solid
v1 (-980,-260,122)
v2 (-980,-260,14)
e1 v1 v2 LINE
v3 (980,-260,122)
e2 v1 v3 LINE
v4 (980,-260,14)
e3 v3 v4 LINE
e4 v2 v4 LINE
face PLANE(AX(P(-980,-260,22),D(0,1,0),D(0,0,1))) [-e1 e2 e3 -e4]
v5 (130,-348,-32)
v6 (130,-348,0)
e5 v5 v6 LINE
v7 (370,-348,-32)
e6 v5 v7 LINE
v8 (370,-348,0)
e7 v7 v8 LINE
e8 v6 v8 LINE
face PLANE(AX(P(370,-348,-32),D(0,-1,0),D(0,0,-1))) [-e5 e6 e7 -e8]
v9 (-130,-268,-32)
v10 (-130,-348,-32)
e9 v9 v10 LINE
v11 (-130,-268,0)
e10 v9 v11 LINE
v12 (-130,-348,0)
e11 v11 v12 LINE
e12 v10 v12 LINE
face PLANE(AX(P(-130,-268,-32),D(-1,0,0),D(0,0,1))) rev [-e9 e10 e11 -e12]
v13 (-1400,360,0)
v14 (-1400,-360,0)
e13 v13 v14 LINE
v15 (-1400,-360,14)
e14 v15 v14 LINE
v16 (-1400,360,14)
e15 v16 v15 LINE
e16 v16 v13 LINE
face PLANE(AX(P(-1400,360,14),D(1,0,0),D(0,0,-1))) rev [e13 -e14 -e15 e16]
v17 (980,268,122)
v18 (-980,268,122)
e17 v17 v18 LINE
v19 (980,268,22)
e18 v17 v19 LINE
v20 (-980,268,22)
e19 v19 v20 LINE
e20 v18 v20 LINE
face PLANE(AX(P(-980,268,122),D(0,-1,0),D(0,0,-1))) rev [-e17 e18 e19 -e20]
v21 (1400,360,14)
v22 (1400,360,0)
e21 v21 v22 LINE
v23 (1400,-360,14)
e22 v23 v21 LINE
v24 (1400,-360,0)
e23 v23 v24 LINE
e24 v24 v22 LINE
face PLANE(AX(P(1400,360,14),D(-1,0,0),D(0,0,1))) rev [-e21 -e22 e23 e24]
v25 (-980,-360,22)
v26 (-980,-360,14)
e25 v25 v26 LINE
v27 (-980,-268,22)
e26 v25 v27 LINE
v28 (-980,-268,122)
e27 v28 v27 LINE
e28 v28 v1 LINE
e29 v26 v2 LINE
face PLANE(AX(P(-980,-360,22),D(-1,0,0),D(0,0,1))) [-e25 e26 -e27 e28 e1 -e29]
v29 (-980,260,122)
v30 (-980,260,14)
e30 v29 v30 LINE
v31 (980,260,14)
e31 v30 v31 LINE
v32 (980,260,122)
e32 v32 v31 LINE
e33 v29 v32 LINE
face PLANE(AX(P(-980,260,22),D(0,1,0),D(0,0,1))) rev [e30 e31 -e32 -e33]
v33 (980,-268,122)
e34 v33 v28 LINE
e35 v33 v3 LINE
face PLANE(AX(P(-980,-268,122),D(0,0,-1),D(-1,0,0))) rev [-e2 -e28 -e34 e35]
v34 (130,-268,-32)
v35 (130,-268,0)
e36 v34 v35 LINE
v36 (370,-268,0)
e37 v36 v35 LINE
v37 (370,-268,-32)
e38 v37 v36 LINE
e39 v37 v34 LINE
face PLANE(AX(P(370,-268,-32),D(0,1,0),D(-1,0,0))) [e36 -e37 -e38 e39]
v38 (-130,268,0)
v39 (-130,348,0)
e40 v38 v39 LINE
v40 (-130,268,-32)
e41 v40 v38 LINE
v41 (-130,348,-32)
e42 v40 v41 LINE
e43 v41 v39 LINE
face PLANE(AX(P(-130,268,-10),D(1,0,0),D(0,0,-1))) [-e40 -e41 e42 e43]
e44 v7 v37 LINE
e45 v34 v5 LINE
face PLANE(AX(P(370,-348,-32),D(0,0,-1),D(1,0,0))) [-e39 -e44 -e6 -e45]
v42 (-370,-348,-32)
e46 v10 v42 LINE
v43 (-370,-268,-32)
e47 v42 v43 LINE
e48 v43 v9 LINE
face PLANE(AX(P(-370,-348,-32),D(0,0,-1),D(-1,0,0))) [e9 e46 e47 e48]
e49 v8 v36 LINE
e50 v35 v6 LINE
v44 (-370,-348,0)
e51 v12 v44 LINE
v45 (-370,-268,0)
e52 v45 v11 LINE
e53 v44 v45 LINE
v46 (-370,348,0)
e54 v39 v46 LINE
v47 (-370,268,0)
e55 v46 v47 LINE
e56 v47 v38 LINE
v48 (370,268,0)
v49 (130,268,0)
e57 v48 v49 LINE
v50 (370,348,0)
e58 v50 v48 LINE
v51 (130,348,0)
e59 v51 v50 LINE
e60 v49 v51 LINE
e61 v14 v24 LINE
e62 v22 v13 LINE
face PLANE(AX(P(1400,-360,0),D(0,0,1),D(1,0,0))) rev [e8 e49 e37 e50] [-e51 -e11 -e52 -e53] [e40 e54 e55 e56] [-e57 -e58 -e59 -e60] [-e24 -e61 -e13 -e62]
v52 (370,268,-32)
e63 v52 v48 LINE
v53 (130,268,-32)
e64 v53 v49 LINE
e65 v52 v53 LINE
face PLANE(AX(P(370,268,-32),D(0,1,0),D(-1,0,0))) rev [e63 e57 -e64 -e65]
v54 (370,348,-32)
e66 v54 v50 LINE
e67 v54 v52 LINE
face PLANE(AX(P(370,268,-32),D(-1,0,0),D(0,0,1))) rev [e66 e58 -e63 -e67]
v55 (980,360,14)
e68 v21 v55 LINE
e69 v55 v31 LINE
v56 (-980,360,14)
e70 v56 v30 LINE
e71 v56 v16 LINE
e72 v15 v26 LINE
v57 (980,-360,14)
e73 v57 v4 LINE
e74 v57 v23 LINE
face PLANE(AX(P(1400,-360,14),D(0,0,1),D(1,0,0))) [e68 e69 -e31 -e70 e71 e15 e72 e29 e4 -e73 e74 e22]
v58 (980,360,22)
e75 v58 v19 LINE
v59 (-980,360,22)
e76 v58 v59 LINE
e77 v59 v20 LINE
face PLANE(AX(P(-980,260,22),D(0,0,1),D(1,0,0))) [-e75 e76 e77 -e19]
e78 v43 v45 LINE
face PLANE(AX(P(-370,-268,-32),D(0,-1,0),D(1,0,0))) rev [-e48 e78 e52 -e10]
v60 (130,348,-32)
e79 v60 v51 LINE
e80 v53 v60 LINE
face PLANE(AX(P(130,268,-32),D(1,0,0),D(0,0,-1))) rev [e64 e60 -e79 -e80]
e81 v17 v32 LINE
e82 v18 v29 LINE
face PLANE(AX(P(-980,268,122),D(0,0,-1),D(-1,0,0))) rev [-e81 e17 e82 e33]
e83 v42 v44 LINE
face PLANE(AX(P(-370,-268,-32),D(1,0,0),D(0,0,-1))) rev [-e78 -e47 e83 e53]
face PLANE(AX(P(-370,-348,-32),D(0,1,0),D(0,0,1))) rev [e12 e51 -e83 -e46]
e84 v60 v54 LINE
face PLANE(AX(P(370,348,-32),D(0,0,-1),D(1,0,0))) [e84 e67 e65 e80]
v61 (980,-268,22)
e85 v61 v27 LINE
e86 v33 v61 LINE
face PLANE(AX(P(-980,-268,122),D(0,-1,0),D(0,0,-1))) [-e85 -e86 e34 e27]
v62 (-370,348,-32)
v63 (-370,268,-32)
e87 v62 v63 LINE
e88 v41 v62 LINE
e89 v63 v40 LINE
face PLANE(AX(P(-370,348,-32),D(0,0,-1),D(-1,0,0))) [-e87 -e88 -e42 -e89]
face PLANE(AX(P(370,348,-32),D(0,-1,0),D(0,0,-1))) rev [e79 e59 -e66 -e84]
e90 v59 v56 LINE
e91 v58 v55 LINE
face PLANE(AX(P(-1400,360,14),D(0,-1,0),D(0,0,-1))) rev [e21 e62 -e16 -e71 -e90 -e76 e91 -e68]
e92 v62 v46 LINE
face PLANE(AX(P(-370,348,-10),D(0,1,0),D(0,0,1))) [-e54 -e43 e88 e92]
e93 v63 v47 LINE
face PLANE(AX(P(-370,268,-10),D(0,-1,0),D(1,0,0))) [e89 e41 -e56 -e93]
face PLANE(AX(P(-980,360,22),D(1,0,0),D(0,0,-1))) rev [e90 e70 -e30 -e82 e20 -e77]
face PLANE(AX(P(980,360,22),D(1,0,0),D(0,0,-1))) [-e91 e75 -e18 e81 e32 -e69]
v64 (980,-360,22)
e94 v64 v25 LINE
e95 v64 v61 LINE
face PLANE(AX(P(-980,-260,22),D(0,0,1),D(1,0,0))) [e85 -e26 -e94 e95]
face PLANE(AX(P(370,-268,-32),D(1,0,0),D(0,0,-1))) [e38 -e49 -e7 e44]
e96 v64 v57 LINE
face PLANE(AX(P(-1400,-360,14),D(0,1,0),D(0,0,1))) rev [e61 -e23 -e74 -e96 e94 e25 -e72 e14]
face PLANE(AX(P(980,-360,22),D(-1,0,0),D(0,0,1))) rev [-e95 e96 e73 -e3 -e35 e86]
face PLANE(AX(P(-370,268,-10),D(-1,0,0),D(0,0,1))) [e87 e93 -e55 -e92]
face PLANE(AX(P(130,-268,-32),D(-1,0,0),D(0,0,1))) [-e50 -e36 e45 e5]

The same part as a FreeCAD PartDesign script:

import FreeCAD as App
import Part
import Sketcher

doc = App.newDocument("Part")
body = doc.addObject("PartDesign::Body", "Body")

# Sketch on XY plane
sketch1 = doc.addObject("Sketcher::SketchObject", "Sketch")
body.addObject(sketch1)
sketch1.AttachmentSupport = (doc.XY_Plane, [""])
sketch1.MapMode = "FlatFace"
sketch1.addGeometry([
    Part.LineSegment(App.Vector(-1400, 360, 0), App.Vector(-1400, -360, 0)),
    Part.LineSegment(App.Vector(-1400, -360, 0), App.Vector(1400, -360, 0)),
    Part.LineSegment(App.Vector(1400, -360, 0), App.Vector(1400, 360, 0)),
    Part.LineSegment(App.Vector(1400, 360, 0), App.Vector(-1400, 360, 0)),
], False)
sketch1.addConstraint([
    Sketcher.Constraint("Coincident", 0, 2, 1, 1),
    Sketcher.Constraint("Coincident", 1, 2, 2, 1),
    Sketcher.Constraint("Coincident", 2, 2, 3, 1),
    Sketcher.Constraint("Coincident", 3, 2, 0, 1),
    Sketcher.Constraint("Vertical", 0),
    Sketcher.Constraint("Horizontal", 1),
    Sketcher.Constraint("Vertical", 2),
    Sketcher.Constraint("Horizontal", 3),
    Sketcher.Constraint("Symmetric", 0, 2, 2, 2, -1, 1),
    Sketcher.Constraint("DistanceX", 1, 1, 1, 2, 2800.0),
    Sketcher.Constraint("DistanceY", 0, 2, 0, 1, 720.0),
])
pad1 = doc.addObject("PartDesign::Pad", "Pad")
body.addObject(pad1)
pad1.Profile = sketch1
pad1.Length = 14

# Sketch on XY plane
sketch2 = doc.addObject("Sketcher::SketchObject", "Sketch001")
body.addObject(sketch2)
sketch2.AttachmentSupport = (doc.XY_Plane, [""])
sketch2.MapMode = "FlatFace"
sketch2.AttachmentOffset = App.Placement(App.Vector(0, 0, 14), App.Rotation())
sketch2.addGeometry([
    Part.LineSegment(App.Vector(-980, 360, 0), App.Vector(-980, 260, 0)),
    Part.LineSegment(App.Vector(-980, 260, 0), App.Vector(0, 260, 0)),
    Part.LineSegment(App.Vector(0, 260, 0), App.Vector(0, 360, 0)),
    Part.LineSegment(App.Vector(0, 360, 0), App.Vector(-980, 360, 0)),
], False)
sketch2.addConstraint([
    Sketcher.Constraint("Coincident", 0, 2, 1, 1),
    Sketcher.Constraint("Coincident", 1, 2, 2, 1),
    Sketcher.Constraint("Coincident", 2, 2, 3, 1),
    Sketcher.Constraint("Coincident", 3, 2, 0, 1),
    Sketcher.Constraint("Vertical", 0),
    Sketcher.Constraint("Horizontal", 1),
    Sketcher.Constraint("Vertical", 2),
    Sketcher.Constraint("Horizontal", 3),
    Sketcher.Constraint("PointOnObject", 1, 2, -2),
    Sketcher.Constraint("DistanceX", 1, 1, 1, 2, 980.0),
    Sketcher.Constraint("DistanceY", 0, 2, 0, 1, 100.0),
    Sketcher.Constraint("DistanceY", -1, 1, 0, 2, 260.0),
])
pad2 = doc.addObject("PartDesign::Pad", "Pad001")
body.addObject(pad2)
pad2.Profile = sketch2
pad2.Length = 8

# Sketch on XY plane
sketch3 = doc.addObject("Sketcher::SketchObject", "Sketch002")
body.addObject(sketch3)
sketch3.AttachmentSupport = (doc.XY_Plane, [""])
sketch3.MapMode = "FlatFace"
sketch3.AttachmentOffset = App.Placement(App.Vector(0, 0, 22), App.Rotation())
sketch3.addGeometry([
    Part.LineSegment(App.Vector(-980, 268, 0), App.Vector(-980, 260, 0)),
    Part.LineSegment(App.Vector(-980, 260, 0), App.Vector(0, 260, 0)),
    Part.LineSegment(App.Vector(0, 260, 0), App.Vector(0, 268, 0)),
    Part.LineSegment(App.Vector(0, 268, 0), App.Vector(-980, 268, 0)),
], False)
sketch3.addConstraint([
    Sketcher.Constraint("Coincident", 0, 2, 1, 1),
    Sketcher.Constraint("Coincident", 1, 2, 2, 1),
    Sketcher.Constraint("Coincident", 2, 2, 3, 1),
    Sketcher.Constraint("Coincident", 3, 2, 0, 1),
    Sketcher.Constraint("Vertical", 0),
    Sketcher.Constraint("Horizontal", 1),
    Sketcher.Constraint("Vertical", 2),
    Sketcher.Constraint("Horizontal", 3),
    Sketcher.Constraint("PointOnObject", 1, 2, -2),
    Sketcher.Constraint("DistanceX", 1, 1, 1, 2, 980.0),
    Sketcher.Constraint("DistanceY", 0, 2, 0, 1, 8.0),
    Sketcher.Constraint("DistanceY", -1, 1, 0, 2, 260.0),
])
pad3 = doc.addObject("PartDesign::Pad", "Pad002")
body.addObject(pad3)
pad3.Profile = sketch3
pad3.Length = 100
doc.recompute()

mirrored = doc.addObject("PartDesign::Mirrored", "Mirrored")
body.addObject(mirrored)
mirrored.Originals = [pad2, pad3]
mirrored.MirrorPlane = (doc.XZ_Plane, [""])
body.Tip = mirrored
doc.recompute()

mirrored2 = doc.addObject("PartDesign::Mirrored", "Mirrored001")
body.addObject(mirrored2)
mirrored2.Originals = [pad3]
mirrored2.MirrorPlane = (doc.YZ_Plane, [""])
body.Tip = mirrored2

# Sketch on XY plane
sketch4 = doc.addObject("Sketcher::SketchObject", "Sketch003")
body.addObject(sketch4)
sketch4.AttachmentSupport = (doc.XY_Plane, [""])
sketch4.MapMode = "FlatFace"
sketch4.AttachmentOffset = App.Placement(App.Vector(0, 0, 14), App.Rotation())
sketch4.addGeometry([
    Part.LineSegment(App.Vector(980, -360, 0), App.Vector(980, -260, 0)),
    Part.LineSegment(App.Vector(980, -260, 0), App.Vector(0, -260, 0)),
    Part.LineSegment(App.Vector(0, -260, 0), App.Vector(0, -360, 0)),
    Part.LineSegment(App.Vector(0, -360, 0), App.Vector(980, -360, 0)),
], False)
sketch4.addConstraint([
    Sketcher.Constraint("Coincident", 0, 2, 1, 1),
    Sketcher.Constraint("Coincident", 1, 2, 2, 1),
    Sketcher.Constraint("Coincident", 2, 2, 3, 1),
    Sketcher.Constraint("Coincident", 3, 2, 0, 1),
    Sketcher.Constraint("Vertical", 0),
    Sketcher.Constraint("Horizontal", 1),
    Sketcher.Constraint("Vertical", 2),
    Sketcher.Constraint("Horizontal", 3),
    Sketcher.Constraint("PointOnObject", 1, 2, -2),
    Sketcher.Constraint("DistanceX", 1, 2, 1, 1, 980.0),
    Sketcher.Constraint("DistanceY", 0, 1, 0, 2, 100.0),
    Sketcher.Constraint("DistanceY", 0, 2, -1, 1, 260.0),
])
pad4 = doc.addObject("PartDesign::Pad", "Pad003")
body.addObject(pad4)
pad4.Profile = sketch4
pad4.Length = 8

# Sketch on XY plane
sketch5 = doc.addObject("Sketcher::SketchObject", "Sketch004")
body.addObject(sketch5)
sketch5.AttachmentSupport = (doc.XY_Plane, [""])
sketch5.MapMode = "FlatFace"
sketch5.AttachmentOffset = App.Placement(App.Vector(0, 0, 22), App.Rotation())
sketch5.addGeometry([
    Part.LineSegment(App.Vector(980, -268, 0), App.Vector(980, -260, 0)),
    Part.LineSegment(App.Vector(980, -260, 0), App.Vector(0, -260, 0)),
    Part.LineSegment(App.Vector(0, -260, 0), App.Vector(0, -268, 0)),
    Part.LineSegment(App.Vector(0, -268, 0), App.Vector(980, -268, 0)),
], False)
sketch5.addConstraint([
    Sketcher.Constraint("Coincident", 0, 2, 1, 1),
    Sketcher.Constraint("Coincident", 1, 2, 2, 1),
    Sketcher.Constraint("Coincident", 2, 2, 3, 1),
    Sketcher.Constraint("Coincident", 3, 2, 0, 1),
    Sketcher.Constraint("Vertical", 0),
    Sketcher.Constraint("Horizontal", 1),
    Sketcher.Constraint("Vertical", 2),
    Sketcher.Constraint("Horizontal", 3),
    Sketcher.Constraint("PointOnObject", 1, 2, -2),
    Sketcher.Constraint("DistanceX", 1, 2, 1, 1, 980.0),
    Sketcher.Constraint("DistanceY", 0, 1, 0, 2, 8.0),
    Sketcher.Constraint("DistanceY", 0, 2, -1, 1, 260.0),
])
pad5 = doc.addObject("PartDesign::Pad", "Pad004")
body.addObject(pad5)
pad5.Profile = sketch5
pad5.Length = 100

# Sketch on XY plane
sketch6 = doc.addObject("Sketcher::SketchObject", "Sketch005")
body.addObject(sketch6)
sketch6.AttachmentSupport = (doc.XY_Plane, [""])
sketch6.MapMode = "FlatFace"
sketch6.AttachmentOffset = App.Placement(App.Vector(0, 0, 14), App.Rotation())
sketch6.addGeometry([
    Part.LineSegment(App.Vector(980, 260, 0), App.Vector(980, 360, 0)),
    Part.LineSegment(App.Vector(980, 360, 0), App.Vector(0, 360, 0)),
    Part.LineSegment(App.Vector(0, 360, 0), App.Vector(0, 260, 0)),
    Part.LineSegment(App.Vector(0, 260, 0), App.Vector(980, 260, 0)),
], False)
sketch6.addConstraint([
    Sketcher.Constraint("Coincident", 0, 2, 1, 1),
    Sketcher.Constraint("Coincident", 1, 2, 2, 1),
    Sketcher.Constraint("Coincident", 2, 2, 3, 1),
    Sketcher.Constraint("Coincident", 3, 2, 0, 1),
    Sketcher.Constraint("Vertical", 0),
    Sketcher.Constraint("Horizontal", 1),
    Sketcher.Constraint("Vertical", 2),
    Sketcher.Constraint("Horizontal", 3),
    Sketcher.Constraint("PointOnObject", 1, 2, -2),
    Sketcher.Constraint("DistanceX", 1, 2, 1, 1, 980.0),
    Sketcher.Constraint("DistanceY", 0, 1, 0, 2, 100.0),
    Sketcher.Constraint("DistanceY", -1, 1, 0, 2, 360.0),
])
pad6 = doc.addObject("PartDesign::Pad", "Pad005")
body.addObject(pad6)
pad6.Profile = sketch6
pad6.Length = 8

# Sketch on XY plane
sketch7 = doc.addObject("Sketcher::SketchObject", "Sketch006")
body.addObject(sketch7)
sketch7.AttachmentSupport = (doc.XY_Plane, [""])
sketch7.MapMode = "FlatFace"
sketch7.AttachmentOffset = App.Placement(App.Vector(0, 0, 22), App.Rotation())
sketch7.addGeometry([
    Part.LineSegment(App.Vector(-370, 348, 0), App.Vector(-370, 268, 0)),
    Part.LineSegment(App.Vector(-370, 268, 0), App.Vector(-130, 268, 0)),
    Part.LineSegment(App.Vector(-130, 268, 0), App.Vector(-130, 348, 0)),
    Part.LineSegment(App.Vector(-130, 348, 0), App.Vector(-370, 348, 0)),
], False)
sketch7.addConstraint([
    Sketcher.Constraint("Coincident", 0, 2, 1, 1),
    Sketcher.Constraint("Coincident", 1, 2, 2, 1),
    Sketcher.Constraint("Coincident", 2, 2, 3, 1),
    Sketcher.Constraint("Coincident", 3, 2, 0, 1),
    Sketcher.Constraint("Vertical", 0),
    Sketcher.Constraint("Horizontal", 1),
    Sketcher.Constraint("Vertical", 2),
    Sketcher.Constraint("Horizontal", 3),
    Sketcher.Constraint("DistanceX", 1, 1, 1, 2, 240.0),
    Sketcher.Constraint("DistanceY", 0, 2, 0, 1, 80.0),
    Sketcher.Constraint("DistanceX", 0, 2, -1, 1, 370.0),
    Sketcher.Constraint("DistanceY", -1, 1, 0, 2, 268.0),
])
pad7 = doc.addObject("PartDesign::Pad", "Pad006")
body.addObject(pad7)
pad7.Profile = sketch7
pad7.Length = 32
pad7.Reversed = True

# Sketch on XY plane
sketch8 = doc.addObject("Sketcher::SketchObject", "Sketch007")
body.addObject(sketch8)
sketch8.AttachmentSupport = (doc.XY_Plane, [""])
sketch8.MapMode = "FlatFace"
sketch8.AttachmentOffset = App.Placement(App.Vector(0, 0, 22), App.Rotation())
sketch8.addGeometry(Part.Circle(App.Vector(-330, 304, 0), App.Vector(0, 0, 1), 13), False)
sketch8.addConstraint([
    Sketcher.Constraint("Diameter", 0, 26.0),
    Sketcher.Constraint("DistanceX", 0, 3, -1, 1, 330.0),
    Sketcher.Constraint("DistanceY", -1, 1, 0, 3, 304.0),
])
pocket1 = doc.addObject("PartDesign::Pocket", "Pocket")
body.addObject(pocket1)
pocket1.Profile = sketch8
pocket1.Type = "ThroughAll"
doc.recompute()

linearpattern = doc.addObject("PartDesign::LinearPattern", "LinearPattern")
body.addObject(linearpattern)
linearpattern.Originals = [pocket1]
linearpattern.Direction = (doc.X_Axis, [""])
linearpattern.Mode = "offset"
linearpattern.Offset = 80
linearpattern.Occurrences = 3
body.Tip = linearpattern

# Sketch on XY plane
sketch9 = doc.addObject("Sketcher::SketchObject", "Sketch008")
body.addObject(sketch9)
sketch9.AttachmentSupport = (doc.XY_Plane, [""])
sketch9.MapMode = "FlatFace"
sketch9.AttachmentOffset = App.Placement(App.Vector(0, 0, 22), App.Rotation())
sketch9.addGeometry([
    Part.LineSegment(App.Vector(-370, 348, 0), App.Vector(-370, 268, 0)),
    Part.LineSegment(App.Vector(-370, 268, 0), App.Vector(-130, 268, 0)),
    Part.LineSegment(App.Vector(-130, 268, 0), App.Vector(-130, 348, 0)),
    Part.LineSegment(App.Vector(-130, 348, 0), App.Vector(-370, 348, 0)),
], False)
sketch9.addConstraint([
    Sketcher.Constraint("Coincident", 0, 2, 1, 1),
    Sketcher.Constraint("Coincident", 1, 2, 2, 1),
    Sketcher.Constraint("Coincident", 2, 2, 3, 1),
    Sketcher.Constraint("Coincident", 3, 2, 0, 1),
    Sketcher.Constraint("Vertical", 0),
    Sketcher.Constraint("Horizontal", 1),
    Sketcher.Constraint("Vertical", 2),
    Sketcher.Constraint("Horizontal", 3),
    Sketcher.Constraint("DistanceX", 1, 1, 1, 2, 240.0),
    Sketcher.Constraint("DistanceY", 0, 2, 0, 1, 80.0),
    Sketcher.Constraint("DistanceX", 0, 2, -1, 1, 370.0),
    Sketcher.Constraint("DistanceY", -1, 1, 0, 2, 268.0),
])
pad8 = doc.addObject("PartDesign::Pad", "Pad007")
body.addObject(pad8)
pad8.Profile = sketch9
pad8.Length = 54
pad8.Reversed = True
doc.recompute()

mirrored3 = doc.addObject("PartDesign::Mirrored", "Mirrored002")
body.addObject(mirrored3)
mirrored3.Originals = [pad8]
mirrored3.MirrorPlane = (doc.XZ_Plane, [""])
body.Tip = mirrored3
doc.recompute()

mirrored4 = doc.addObject("PartDesign::Mirrored", "Mirrored003")
body.addObject(mirrored4)
mirrored4.Originals = [pad8]
mirrored4.MirrorPlane = (doc.YZ_Plane, [""])
body.Tip = mirrored4

# Sketch on XY plane
sketch10 = doc.addObject("Sketcher::SketchObject", "Sketch009")
body.addObject(sketch10)
sketch10.AttachmentSupport = (doc.XY_Plane, [""])
sketch10.MapMode = "FlatFace"
sketch10.AttachmentOffset = App.Placement(App.Vector(0, 0, 22), App.Rotation())
sketch10.addGeometry([
    Part.LineSegment(App.Vector(370, -348, 0), App.Vector(370, -268, 0)),
    Part.LineSegment(App.Vector(370, -268, 0), App.Vector(130, -268, 0)),
    Part.LineSegment(App.Vector(130, -268, 0), App.Vector(130, -348, 0)),
    Part.LineSegment(App.Vector(130, -348, 0), App.Vector(370, -348, 0)),
], False)
sketch10.addConstraint([
    Sketcher.Constraint("Coincident", 0, 2, 1, 1),
    Sketcher.Constraint("Coincident", 1, 2, 2, 1),
    Sketcher.Constraint("Coincident", 2, 2, 3, 1),
    Sketcher.Constraint("Coincident", 3, 2, 0, 1),
    Sketcher.Constraint("Vertical", 0),
    Sketcher.Constraint("Horizontal", 1),
    Sketcher.Constraint("Vertical", 2),
    Sketcher.Constraint("Horizontal", 3),
    Sketcher.Constraint("DistanceX", 1, 2, 1, 1, 240.0),
    Sketcher.Constraint("DistanceY", 0, 1, 0, 2, 80.0),
    Sketcher.Constraint("DistanceX", -1, 1, 0, 2, 370.0),
    Sketcher.Constraint("DistanceY", 0, 2, -1, 1, 268.0),
])
pad9 = doc.addObject("PartDesign::Pad", "Pad008")
body.addObject(pad9)
pad9.Profile = sketch10
pad9.Length = 54
pad9.Reversed = True

doc.recompute()
